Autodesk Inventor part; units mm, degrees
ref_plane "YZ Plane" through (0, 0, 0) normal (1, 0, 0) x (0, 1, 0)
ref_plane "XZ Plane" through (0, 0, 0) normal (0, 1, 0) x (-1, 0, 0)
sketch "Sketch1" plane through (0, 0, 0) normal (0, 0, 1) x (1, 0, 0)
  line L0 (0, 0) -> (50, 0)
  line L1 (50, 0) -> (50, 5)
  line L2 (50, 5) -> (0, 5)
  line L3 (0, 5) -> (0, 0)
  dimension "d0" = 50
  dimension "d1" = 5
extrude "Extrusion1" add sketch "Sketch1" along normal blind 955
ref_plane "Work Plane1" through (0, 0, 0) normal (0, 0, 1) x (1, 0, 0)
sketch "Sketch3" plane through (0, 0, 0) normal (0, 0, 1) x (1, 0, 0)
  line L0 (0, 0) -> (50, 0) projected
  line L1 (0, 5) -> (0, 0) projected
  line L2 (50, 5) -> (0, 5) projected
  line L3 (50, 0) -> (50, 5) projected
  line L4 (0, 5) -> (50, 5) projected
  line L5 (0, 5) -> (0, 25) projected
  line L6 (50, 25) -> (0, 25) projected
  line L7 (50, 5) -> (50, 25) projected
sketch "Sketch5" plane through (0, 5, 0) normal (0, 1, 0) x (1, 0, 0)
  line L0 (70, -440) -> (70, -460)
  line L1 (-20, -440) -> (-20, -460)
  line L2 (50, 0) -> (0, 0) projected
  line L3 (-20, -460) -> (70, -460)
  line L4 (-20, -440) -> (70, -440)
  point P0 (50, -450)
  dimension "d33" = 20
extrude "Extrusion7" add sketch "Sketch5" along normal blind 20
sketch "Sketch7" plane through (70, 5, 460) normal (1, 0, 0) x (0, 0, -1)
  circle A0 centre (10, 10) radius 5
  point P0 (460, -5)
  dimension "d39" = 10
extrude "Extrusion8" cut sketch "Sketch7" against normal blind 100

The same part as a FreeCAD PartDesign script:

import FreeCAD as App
import Part
import Sketcher

V = App.Vector
Q = App.Units.Quantity

doc = App.newDocument("Part")
params = doc.addObject("Spreadsheet::Sheet", "Params")
for row, (alias, value) in enumerate([
    ("sketch1_width", "50 mm"),
    ("sketch1_height", "5 mm"),
    ("pad1_length", "955 mm"),
    ("sketch2_height", "20 mm"),
    ("sketch2_width", "90 mm"),
    ("pad2_length", "20 mm"),
    ("sketch3_diameter", "10 mm"),
    ("pocket1_length", "100 mm"),
], start=1):
    params.set(f"A{row}", alias)
    params.set(f"B{row}", "=" + value)
    params.setAlias(f"B{row}", alias)

body = doc.addObject("PartDesign::Body", "Body")

# Sketch on XY plane
sketch1 = doc.addObject("Sketcher::SketchObject", "Sketch")
body.addObject(sketch1)
sketch1.AttachmentSupport = (doc.XY_Plane, [""])
sketch1.MapMode = "FlatFace"
sketch1.addGeometry([
    Part.LineSegment(V(0, 5, 0), V(0, 0, 0)),
    Part.LineSegment(V(0, 0, 0), V(50, 0, 0)),
    Part.LineSegment(V(50, 0, 0), V(50, 5, 0)),
    Part.LineSegment(V(50, 5, 0), V(0, 5, 0)),
], False)
sketch1.addConstraint([
    Sketcher.Constraint("Coincident", 0, 2, 1, 1),
    Sketcher.Constraint("Coincident", 1, 2, 2, 1),
    Sketcher.Constraint("Coincident", 2, 2, 3, 1),
    Sketcher.Constraint("Coincident", 3, 2, 0, 1),
    Sketcher.Constraint("Vertical", 0),
    Sketcher.Constraint("Horizontal", 1),
    Sketcher.Constraint("Vertical", 2),
    Sketcher.Constraint("Horizontal", 3),
    Sketcher.Constraint("Coincident", 0, 2, -1, 1),
    Sketcher.Constraint("DistanceX", 1, 1, 1, 2, Q("50 mm")),
    Sketcher.Constraint("DistanceY", 0, 2, 0, 1, Q("5 mm")),
])
sketch1.setExpression("Constraints[9]", "Params.sketch1_width")
sketch1.setExpression("Constraints[10]", "Params.sketch1_height")
pad1 = doc.addObject("PartDesign::Pad", "Pad")
body.addObject(pad1)
pad1.Profile = sketch1
pad1.setExpression("Length", "Params.pad1_length")

# Sketch on XZ plane
sketch2 = doc.addObject("Sketcher::SketchObject", "Sketch001")
body.addObject(sketch2)
sketch2.AttachmentSupport = (doc.XZ_Plane, [""])
sketch2.MapMode = "FlatFace"
sketch2.AttachmentOffset = App.Placement(V(0, 0, -5), App.Rotation())
sketch2.addGeometry([
    Part.LineSegment(V(70, 460, 0), V(70, 440, 0)),
    Part.LineSegment(V(70, 440, 0), V(-20, 440, 0)),
    Part.LineSegment(V(-20, 440, 0), V(-20, 460, 0)),
    Part.LineSegment(V(-20, 460, 0), V(70, 460, 0)),
], False)
sketch2.addConstraint([
    Sketcher.Constraint("Coincident", 0, 2, 1, 1),
    Sketcher.Constraint("Coincident", 1, 2, 2, 1),
    Sketcher.Constraint("Coincident", 2, 2, 3, 1),
    Sketcher.Constraint("Coincident", 3, 2, 0, 1),
    Sketcher.Constraint("Vertical", 0),
    Sketcher.Constraint("Horizontal", 1),
    Sketcher.Constraint("Vertical", 2),
    Sketcher.Constraint("Horizontal", 3),
    Sketcher.Constraint("DistanceY", 0, 2, 0, 1, Q("20 mm")),
    Sketcher.Constraint("DistanceX", 1, 2, -1, 1, Q("20 mm")),
    Sketcher.Constraint("DistanceX", 1, 2, 1, 1, Q("90 mm")),
    Sketcher.Constraint("DistanceY", -1, 1, 0, 2, Q("440 mm")),
])
sketch2.setExpression("Constraints[8]", "Params.sketch2_height")
sketch2.setExpression("Constraints[10]", "Params.sketch2_width")
pad2 = doc.addObject("PartDesign::Pad", "Pad001")
body.addObject(pad2)
pad2.Profile = sketch2
pad2.setExpression("Length", "Params.pad2_length")
pad2.Reversed = True

# Sketch on YZ plane
sketch3 = doc.addObject("Sketcher::SketchObject", "Sketch002")
body.addObject(sketch3)
sketch3.AttachmentSupport = (doc.YZ_Plane, [""])
sketch3.MapMode = "FlatFace"
sketch3.AttachmentOffset = App.Placement(V(0, 0, 70), App.Rotation())
sketch3.addGeometry(Part.Circle(V(15, 450, 0), V(0, 0, 1), 5), False)
sketch3.addConstraint([
    Sketcher.Constraint("Diameter", 0, Q("10 mm")),
    Sketcher.Constraint("DistanceX", -1, 1, 0, 3, Q("15 mm")),
    Sketcher.Constraint("DistanceY", -1, 1, 0, 3, Q("450 mm")),
])
sketch3.setExpression("Constraints[0]", "Params.sketch3_diameter")
pocket1 = doc.addObject("PartDesign::Pocket", "Pocket")
body.addObject(pocket1)
pocket1.Profile = sketch3
pocket1.setExpression("Length", "Params.pocket1_length")

doc.recompute()
